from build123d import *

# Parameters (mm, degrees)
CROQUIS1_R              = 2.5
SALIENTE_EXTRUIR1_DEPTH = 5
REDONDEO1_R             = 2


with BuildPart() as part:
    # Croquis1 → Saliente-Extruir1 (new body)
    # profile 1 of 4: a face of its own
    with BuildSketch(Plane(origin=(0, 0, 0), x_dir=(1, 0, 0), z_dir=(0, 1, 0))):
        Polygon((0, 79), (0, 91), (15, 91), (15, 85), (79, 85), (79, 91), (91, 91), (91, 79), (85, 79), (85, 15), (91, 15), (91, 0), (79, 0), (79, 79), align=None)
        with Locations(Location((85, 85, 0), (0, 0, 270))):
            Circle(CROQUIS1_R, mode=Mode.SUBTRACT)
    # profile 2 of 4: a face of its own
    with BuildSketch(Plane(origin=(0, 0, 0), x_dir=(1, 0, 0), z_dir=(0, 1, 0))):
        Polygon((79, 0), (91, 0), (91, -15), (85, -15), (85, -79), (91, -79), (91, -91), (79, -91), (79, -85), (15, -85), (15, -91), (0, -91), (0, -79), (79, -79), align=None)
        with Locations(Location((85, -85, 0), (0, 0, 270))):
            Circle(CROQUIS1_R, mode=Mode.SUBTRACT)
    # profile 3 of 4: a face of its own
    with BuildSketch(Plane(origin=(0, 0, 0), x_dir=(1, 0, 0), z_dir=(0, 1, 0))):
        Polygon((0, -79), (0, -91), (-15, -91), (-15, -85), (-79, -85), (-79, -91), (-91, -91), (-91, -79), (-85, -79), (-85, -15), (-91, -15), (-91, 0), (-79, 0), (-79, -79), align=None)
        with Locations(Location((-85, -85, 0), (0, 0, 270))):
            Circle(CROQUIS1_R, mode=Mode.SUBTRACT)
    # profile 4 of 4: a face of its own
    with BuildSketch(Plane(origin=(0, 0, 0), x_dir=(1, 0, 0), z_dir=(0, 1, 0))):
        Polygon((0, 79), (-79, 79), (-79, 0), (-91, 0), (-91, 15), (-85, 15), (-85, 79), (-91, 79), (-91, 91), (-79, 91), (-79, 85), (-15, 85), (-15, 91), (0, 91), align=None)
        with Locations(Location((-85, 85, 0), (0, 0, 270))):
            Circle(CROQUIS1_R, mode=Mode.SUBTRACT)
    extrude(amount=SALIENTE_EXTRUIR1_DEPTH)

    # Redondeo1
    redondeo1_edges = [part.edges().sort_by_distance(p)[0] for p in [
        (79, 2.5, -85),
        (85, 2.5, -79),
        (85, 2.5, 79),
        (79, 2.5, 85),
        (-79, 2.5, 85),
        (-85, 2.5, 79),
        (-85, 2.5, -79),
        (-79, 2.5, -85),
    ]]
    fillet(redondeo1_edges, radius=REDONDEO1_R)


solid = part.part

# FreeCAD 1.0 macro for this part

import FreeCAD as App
import Part
import Sketcher
from FreeCAD import Vector


def edges_at(feature, points):
    """Names of the edges that pass closest to the given points."""
    edges = feature.Shape.Edges
    near = lambda p: min(range(len(edges)), key=lambda i: edges[i].distToShape(Part.Vertex(*p))[0])
    return sorted({f"Edge{near(p) + 1}" for p in points})

doc = App.newDocument("Part")
body = doc.addObject("PartDesign::Body", "Body")

sketch1 = body.newObject("Sketcher::SketchObject", "Sketch")
sketch1.AttachmentSupport = (doc.getObject("XZ_Plane"), [""])
sketch1.MapMode = "FlatFace"
sketch1.addGeometry(Part.LineSegment(Vector(15, -91, 0), Vector(-15, -91, 0)), False)
sketch1.addGeometry(Part.LineSegment(Vector(-15, -91, 0), Vector(-15, -85, 0)), False)
sketch1.addGeometry(Part.LineSegment(Vector(-15, -85, 0), Vector(-79, -85, 0)), False)
sketch1.addGeometry(Part.LineSegment(Vector(-79, -85, 0), Vector(-79, -91, 0)), False)
sketch1.addGeometry(Part.LineSegment(Vector(-79, -91, 0), Vector(-91, -91, 0)), False)
sketch1.addGeometry(Part.LineSegment(Vector(-91, -91, 0), Vector(-91, -79, 0)), False)
sketch1.addGeometry(Part.LineSegment(Vector(-91, -79, 0), Vector(-85, -79, 0)), False)
sketch1.addGeometry(Part.LineSegment(Vector(-85, -79, 0), Vector(-85, -15, 0)), False)
sketch1.addGeometry(Part.LineSegment(Vector(-85, -15, 0), Vector(-91, -15, 0)), False)
sketch1.addGeometry(Part.LineSegment(Vector(-91, -15, 0), Vector(-91, 15, 0)), False)
sketch1.addGeometry(Part.LineSegment(Vector(-91, 15, 0), Vector(-85, 15, 0)), False)
sketch1.addGeometry(Part.LineSegment(Vector(-85, 15, 0), Vector(-85, 79, 0)), False)
sketch1.addGeometry(Part.LineSegment(Vector(-85, 79, 0), Vector(-91, 79, 0)), False)
sketch1.addGeometry(Part.LineSegment(Vector(-91, 79, 0), Vector(-91, 91, 0)), False)
sketch1.addGeometry(Part.LineSegment(Vector(-91, 91, 0), Vector(-79, 91, 0)), False)
sketch1.addGeometry(Part.LineSegment(Vector(-79, 91, 0), Vector(-79, 85, 0)), False)
sketch1.addGeometry(Part.LineSegment(Vector(-79, 85, 0), Vector(-15, 85, 0)), False)
sketch1.addGeometry(Part.LineSegment(Vector(-15, 85, 0), Vector(-15, 91, 0)), False)
sketch1.addGeometry(Part.LineSegment(Vector(-15, 91, 0), Vector(15, 91, 0)), False)
sketch1.addGeometry(Part.LineSegment(Vector(15, 91, 0), Vector(15, 85, 0)), False)
sketch1.addGeometry(Part.LineSegment(Vector(15, 85, 0), Vector(79, 85, 0)), False)
sketch1.addGeometry(Part.LineSegment(Vector(79, 85, 0), Vector(79, 91, 0)), False)
sketch1.addGeometry(Part.LineSegment(Vector(79, 91, 0), Vector(91, 91, 0)), False)
sketch1.addGeometry(Part.LineSegment(Vector(91, 91, 0), Vector(91, 79, 0)), False)
sketch1.addGeometry(Part.LineSegment(Vector(91, 79, 0), Vector(85, 79, 0)), False)
sketch1.addGeometry(Part.LineSegment(Vector(85, 79, 0), Vector(85, 15, 0)), False)
sketch1.addGeometry(Part.LineSegment(Vector(85, 15, 0), Vector(91, 15, 0)), False)
sketch1.addGeometry(Part.LineSegment(Vector(91, 15, 0), Vector(91, -15, 0)), False)
sketch1.addGeometry(Part.LineSegment(Vector(91, -15, 0), Vector(85, -15, 0)), False)
sketch1.addGeometry(Part.LineSegment(Vector(85, -15, 0), Vector(85, -79, 0)), False)
sketch1.addGeometry(Part.LineSegment(Vector(85, -79, 0), Vector(91, -79, 0)), False)
sketch1.addGeometry(Part.LineSegment(Vector(91, -79, 0), Vector(91, -91, 0)), False)
sketch1.addGeometry(Part.LineSegment(Vector(91, -91, 0), Vector(79, -91, 0)), False)
sketch1.addGeometry(Part.LineSegment(Vector(79, -91, 0), Vector(79, -85, 0)), False)
sketch1.addGeometry(Part.LineSegment(Vector(79, -85, 0), Vector(15, -85, 0)), False)
sketch1.addGeometry(Part.LineSegment(Vector(15, -85, 0), Vector(15, -91, 0)), False)
sketch1.addGeometry(Part.LineSegment(Vector(-79, -79, 0), Vector(79, -79, 0)), False)
sketch1.addGeometry(Part.LineSegment(Vector(79, -79, 0), Vector(79, 79, 0)), False)
sketch1.addGeometry(Part.LineSegment(Vector(79, 79, 0), Vector(-79, 79, 0)), False)
sketch1.addGeometry(Part.LineSegment(Vector(-79, 79, 0), Vector(-79, -79, 0)), False)
sketch1.addGeometry(Part.Circle(Vector(85, -85, 0), Vector(0, 0, 1), 2.5), False)
sketch1.addGeometry(Part.Circle(Vector(-85, -85, 0), Vector(0, 0, 1), 2.5), False)
sketch1.addGeometry(Part.Circle(Vector(85, 85, 0), Vector(0, 0, 1), 2.5), False)
sketch1.addGeometry(Part.Circle(Vector(-85, 85, 0), Vector(0, 0, 1), 2.5), False)
sketch1.addConstraint(Sketcher.Constraint("Coincident", 0, 2, 1, 1))
sketch1.addConstraint(Sketcher.Constraint("Coincident", 1, 2, 2, 1))
sketch1.addConstraint(Sketcher.Constraint("Coincident", 2, 2, 3, 1))
sketch1.addConstraint(Sketcher.Constraint("Coincident", 3, 2, 4, 1))
sketch1.addConstraint(Sketcher.Constraint("Coincident", 4, 2, 5, 1))
sketch1.addConstraint(Sketcher.Constraint("Coincident", 5, 2, 6, 1))
sketch1.addConstraint(Sketcher.Constraint("Coincident", 6, 2, 7, 1))
sketch1.addConstraint(Sketcher.Constraint("Coincident", 7, 2, 8, 1))
sketch1.addConstraint(Sketcher.Constraint("Coincident", 8, 2, 9, 1))
sketch1.addConstraint(Sketcher.Constraint("Coincident", 9, 2, 10, 1))
sketch1.addConstraint(Sketcher.Constraint("Coincident", 10, 2, 11, 1))
sketch1.addConstraint(Sketcher.Constraint("Coincident", 11, 2, 12, 1))
sketch1.addConstraint(Sketcher.Constraint("Coincident", 12, 2, 13, 1))
sketch1.addConstraint(Sketcher.Constraint("Coincident", 13, 2, 14, 1))
sketch1.addConstraint(Sketcher.Constraint("Coincident", 14, 2, 15, 1))
sketch1.addConstraint(Sketcher.Constraint("Coincident", 15, 2, 16, 1))
sketch1.addConstraint(Sketcher.Constraint("Coincident", 16, 2, 17, 1))
sketch1.addConstraint(Sketcher.Constraint("Coincident", 17, 2, 18, 1))
sketch1.addConstraint(Sketcher.Constraint("Coincident", 18, 2, 19, 1))
sketch1.addConstraint(Sketcher.Constraint("Coincident", 19, 2, 20, 1))
sketch1.addConstraint(Sketcher.Constraint("Coincident", 20, 2, 21, 1))
sketch1.addConstraint(Sketcher.Constraint("Coincident", 21, 2, 22, 1))
sketch1.addConstraint(Sketcher.Constraint("Coincident", 22, 2, 23, 1))
sketch1.addConstraint(Sketcher.Constraint("Coincident", 23, 2, 24, 1))
sketch1.addConstraint(Sketcher.Constraint("Coincident", 24, 2, 25, 1))
sketch1.addConstraint(Sketcher.Constraint("Coincident", 25, 2, 26, 1))
sketch1.addConstraint(Sketcher.Constraint("Coincident", 26, 2, 27, 1))
sketch1.addConstraint(Sketcher.Constraint("Coincident", 27, 2, 28, 1))
sketch1.addConstraint(Sketcher.Constraint("Coincident", 28, 2, 29, 1))
sketch1.addConstraint(Sketcher.Constraint("Coincident", 29, 2, 30, 1))
sketch1.addConstraint(Sketcher.Constraint("Coincident", 30, 2, 31, 1))
sketch1.addConstraint(Sketcher.Constraint("Coincident", 31, 2, 32, 1))
sketch1.addConstraint(Sketcher.Constraint("Coincident", 32, 2, 33, 1))
sketch1.addConstraint(Sketcher.Constraint("Coincident", 33, 2, 34, 1))
sketch1.addConstraint(Sketcher.Constraint("Coincident", 34, 2, 35, 1))
sketch1.addConstraint(Sketcher.Constraint("Coincident", 35, 2, 0, 1))
sketch1.addConstraint(Sketcher.Constraint("Coincident", 36, 2, 37, 1))
sketch1.addConstraint(Sketcher.Constraint("Coincident", 37, 2, 38, 1))
sketch1.addConstraint(Sketcher.Constraint("Coincident", 38, 2, 39, 1))
sketch1.addConstraint(Sketcher.Constraint("Coincident", 39, 2, 36, 1))
sketch1.addConstraint(Sketcher.Constraint("Horizontal", 0))
sketch1.addConstraint(Sketcher.Constraint("Vertical", 1))
sketch1.addConstraint(Sketcher.Constraint("Horizontal", 2))
sketch1.addConstraint(Sketcher.Constraint("Vertical", 3))
sketch1.addConstraint(Sketcher.Constraint("Horizontal", 4))
sketch1.addConstraint(Sketcher.Constraint("Vertical", 5))
sketch1.addConstraint(Sketcher.Constraint("Horizontal", 6))
sketch1.addConstraint(Sketcher.Constraint("Vertical", 7))
sketch1.addConstraint(Sketcher.Constraint("Horizontal", 8))
sketch1.addConstraint(Sketcher.Constraint("Vertical", 9))
sketch1.addConstraint(Sketcher.Constraint("Horizontal", 10))
sketch1.addConstraint(Sketcher.Constraint("Vertical", 11))
sketch1.addConstraint(Sketcher.Constraint("Horizontal", 12))
sketch1.addConstraint(Sketcher.Constraint("Vertical", 13))
sketch1.addConstraint(Sketcher.Constraint("Horizontal", 14))
sketch1.addConstraint(Sketcher.Constraint("Vertical", 15))
sketch1.addConstraint(Sketcher.Constraint("Horizontal", 16))
sketch1.addConstraint(Sketcher.Constraint("Vertical", 17))
sketch1.addConstraint(Sketcher.Constraint("Horizontal", 18))
sketch1.addConstraint(Sketcher.Constraint("Vertical", 19))
sketch1.addConstraint(Sketcher.Constraint("Horizontal", 20))
sketch1.addConstraint(Sketcher.Constraint("Vertical", 21))
sketch1.addConstraint(Sketcher.Constraint("Horizontal", 22))
sketch1.addConstraint(Sketcher.Constraint("Vertical", 23))
sketch1.addConstraint(Sketcher.Constraint("Horizontal", 24))
sketch1.addConstraint(Sketcher.Constraint("Vertical", 25))
sketch1.addConstraint(Sketcher.Constraint("Horizontal", 26))
sketch1.addConstraint(Sketcher.Constraint("Vertical", 27))
sketch1.addConstraint(Sketcher.Constraint("Horizontal", 28))
sketch1.addConstraint(Sketcher.Constraint("Vertical", 29))
sketch1.addConstraint(Sketcher.Constraint("Horizontal", 30))
sketch1.addConstraint(Sketcher.Constraint("Vertical", 31))
sketch1.addConstraint(Sketcher.Constraint("Horizontal", 32))
sketch1.addConstraint(Sketcher.Constraint("Vertical", 33))
sketch1.addConstraint(Sketcher.Constraint("Horizontal", 34))
sketch1.addConstraint(Sketcher.Constraint("Vertical", 35))
sketch1.addConstraint(Sketcher.Constraint("Horizontal", 36))
sketch1.addConstraint(Sketcher.Constraint("Vertical", 37))
sketch1.addConstraint(Sketcher.Constraint("Horizontal", 38))
sketch1.addConstraint(Sketcher.Constraint("Vertical", 39))
sketch1.addConstraint(Sketcher.Constraint("Equal", 40, 41))
sketch1.addConstraint(Sketcher.Constraint("Equal", 41, 42))
sketch1.addConstraint(Sketcher.Constraint("Equal", 42, 43))
sketch1.addConstraint(Sketcher.Constraint("Symmetric", 41, 3, 42, 3, -1, 1))
sketch1.addConstraint(Sketcher.Constraint("Symmetric", 40, 3, 43, 3, -1, 1))
sketch1.addConstraint(Sketcher.Constraint("Symmetric", 0, 2, 18, 2, -1, 1))
sketch1.addConstraint(Sketcher.Constraint("Symmetric", 2, 2, 20, 2, -1, 1))
sketch1.addConstraint(Sketcher.Constraint("Symmetric", 4, 2, 22, 2, -1, 1))
sketch1.addConstraint(Sketcher.Constraint("Symmetric", 6, 2, 24, 2, -1, 1))
sketch1.addConstraint(Sketcher.Constraint("Symmetric", 8, 2, 26, 2, -1, 1))
sketch1.addConstraint(Sketcher.Constraint("Symmetric", 10, 2, 28, 2, -1, 1))
sketch1.addConstraint(Sketcher.Constraint("Symmetric", 12, 2, 30, 2, -1, 1))
sketch1.addConstraint(Sketcher.Constraint("Symmetric", 14, 2, 32, 2, -1, 1))
sketch1.addConstraint(Sketcher.Constraint("Symmetric", 16, 2, 34, 2, -1, 1))
sketch1.addConstraint(Sketcher.Constraint("Symmetric", 36, 2, 38, 2, -1, 1))
sketch1.addConstraint(Sketcher.Constraint("Symmetric", 40, 3, 41, 3, -2))
sketch1.addConstraint(Sketcher.Constraint("Symmetric", 16, 2, 19, 2, -2))
sketch1.addConstraint(Sketcher.Constraint("Symmetric", 14, 2, 21, 2, -2))
sketch1.addConstraint(Sketcher.Constraint("Symmetric", 12, 2, 23, 2, -2))
sketch1.addConstraint(Sketcher.Constraint("Symmetric", 10, 2, 25, 2, -2))
sketch1.addConstraint(Sketcher.Constraint("Horizontal", 41, 3, 1, 2))
sketch1.addConstraint(Sketcher.Constraint("Horizontal", 0, 2, 3, 2))
sketch1.addConstraint(Sketcher.Constraint("Horizontal", 30, 2, 36, 2))
sketch1.addConstraint(Sketcher.Constraint("Vertical", 43, 3, 6, 2))
sketch1.addConstraint(Sketcher.Constraint("Vertical", 5, 2, 8, 2))
sketch1.addConstraint(Sketcher.Constraint("Vertical", 33, 2, 36, 2))
sketch1.addConstraint(Sketcher.Constraint("Equal", 30, 1))
sketch1.addConstraint(Sketcher.Constraint("Equal", 32, 5))
sketch1.addConstraint(Sketcher.Constraint("Equal", 34, 7))
sketch1.addConstraint(Sketcher.Constraint("Equal", 18, 9))
sketch1.addConstraint(Sketcher.Constraint("Diameter", 40, 5.0))
sketch1.addConstraint(Sketcher.Constraint("DistanceX", 0, 2, 0, 1, 30.0))
sketch1.addConstraint(Sketcher.Constraint("DistanceX", 2, 2, 2, 1, 64.0))
sketch1.addConstraint(Sketcher.Constraint("DistanceX", 4, 2, 4, 1, 12.0))
sketch1.addConstraint(Sketcher.Constraint("DistanceX", 6, 1, 6, 2, 6.0))
pad1 = body.newObject("PartDesign::Pad", "Pad")
pad1.Profile = sketch1
pad1.Length = 5
pad1.Reversed = True
doc.recompute()

fillet = body.newObject("PartDesign::Fillet", "Fillet")
fillet.Base = (pad1, edges_at(pad1, [
    (79, 2.5, -85),
    (85, 2.5, -79),
    (85, 2.5, 79),
    (79, 2.5, 85),
    (-79, 2.5, 85),
    (-85, 2.5, 79),
    (-85, 2.5, -79),
    (-79, 2.5, -85),
]))
fillet.Radius = 2

doc.recompute()
